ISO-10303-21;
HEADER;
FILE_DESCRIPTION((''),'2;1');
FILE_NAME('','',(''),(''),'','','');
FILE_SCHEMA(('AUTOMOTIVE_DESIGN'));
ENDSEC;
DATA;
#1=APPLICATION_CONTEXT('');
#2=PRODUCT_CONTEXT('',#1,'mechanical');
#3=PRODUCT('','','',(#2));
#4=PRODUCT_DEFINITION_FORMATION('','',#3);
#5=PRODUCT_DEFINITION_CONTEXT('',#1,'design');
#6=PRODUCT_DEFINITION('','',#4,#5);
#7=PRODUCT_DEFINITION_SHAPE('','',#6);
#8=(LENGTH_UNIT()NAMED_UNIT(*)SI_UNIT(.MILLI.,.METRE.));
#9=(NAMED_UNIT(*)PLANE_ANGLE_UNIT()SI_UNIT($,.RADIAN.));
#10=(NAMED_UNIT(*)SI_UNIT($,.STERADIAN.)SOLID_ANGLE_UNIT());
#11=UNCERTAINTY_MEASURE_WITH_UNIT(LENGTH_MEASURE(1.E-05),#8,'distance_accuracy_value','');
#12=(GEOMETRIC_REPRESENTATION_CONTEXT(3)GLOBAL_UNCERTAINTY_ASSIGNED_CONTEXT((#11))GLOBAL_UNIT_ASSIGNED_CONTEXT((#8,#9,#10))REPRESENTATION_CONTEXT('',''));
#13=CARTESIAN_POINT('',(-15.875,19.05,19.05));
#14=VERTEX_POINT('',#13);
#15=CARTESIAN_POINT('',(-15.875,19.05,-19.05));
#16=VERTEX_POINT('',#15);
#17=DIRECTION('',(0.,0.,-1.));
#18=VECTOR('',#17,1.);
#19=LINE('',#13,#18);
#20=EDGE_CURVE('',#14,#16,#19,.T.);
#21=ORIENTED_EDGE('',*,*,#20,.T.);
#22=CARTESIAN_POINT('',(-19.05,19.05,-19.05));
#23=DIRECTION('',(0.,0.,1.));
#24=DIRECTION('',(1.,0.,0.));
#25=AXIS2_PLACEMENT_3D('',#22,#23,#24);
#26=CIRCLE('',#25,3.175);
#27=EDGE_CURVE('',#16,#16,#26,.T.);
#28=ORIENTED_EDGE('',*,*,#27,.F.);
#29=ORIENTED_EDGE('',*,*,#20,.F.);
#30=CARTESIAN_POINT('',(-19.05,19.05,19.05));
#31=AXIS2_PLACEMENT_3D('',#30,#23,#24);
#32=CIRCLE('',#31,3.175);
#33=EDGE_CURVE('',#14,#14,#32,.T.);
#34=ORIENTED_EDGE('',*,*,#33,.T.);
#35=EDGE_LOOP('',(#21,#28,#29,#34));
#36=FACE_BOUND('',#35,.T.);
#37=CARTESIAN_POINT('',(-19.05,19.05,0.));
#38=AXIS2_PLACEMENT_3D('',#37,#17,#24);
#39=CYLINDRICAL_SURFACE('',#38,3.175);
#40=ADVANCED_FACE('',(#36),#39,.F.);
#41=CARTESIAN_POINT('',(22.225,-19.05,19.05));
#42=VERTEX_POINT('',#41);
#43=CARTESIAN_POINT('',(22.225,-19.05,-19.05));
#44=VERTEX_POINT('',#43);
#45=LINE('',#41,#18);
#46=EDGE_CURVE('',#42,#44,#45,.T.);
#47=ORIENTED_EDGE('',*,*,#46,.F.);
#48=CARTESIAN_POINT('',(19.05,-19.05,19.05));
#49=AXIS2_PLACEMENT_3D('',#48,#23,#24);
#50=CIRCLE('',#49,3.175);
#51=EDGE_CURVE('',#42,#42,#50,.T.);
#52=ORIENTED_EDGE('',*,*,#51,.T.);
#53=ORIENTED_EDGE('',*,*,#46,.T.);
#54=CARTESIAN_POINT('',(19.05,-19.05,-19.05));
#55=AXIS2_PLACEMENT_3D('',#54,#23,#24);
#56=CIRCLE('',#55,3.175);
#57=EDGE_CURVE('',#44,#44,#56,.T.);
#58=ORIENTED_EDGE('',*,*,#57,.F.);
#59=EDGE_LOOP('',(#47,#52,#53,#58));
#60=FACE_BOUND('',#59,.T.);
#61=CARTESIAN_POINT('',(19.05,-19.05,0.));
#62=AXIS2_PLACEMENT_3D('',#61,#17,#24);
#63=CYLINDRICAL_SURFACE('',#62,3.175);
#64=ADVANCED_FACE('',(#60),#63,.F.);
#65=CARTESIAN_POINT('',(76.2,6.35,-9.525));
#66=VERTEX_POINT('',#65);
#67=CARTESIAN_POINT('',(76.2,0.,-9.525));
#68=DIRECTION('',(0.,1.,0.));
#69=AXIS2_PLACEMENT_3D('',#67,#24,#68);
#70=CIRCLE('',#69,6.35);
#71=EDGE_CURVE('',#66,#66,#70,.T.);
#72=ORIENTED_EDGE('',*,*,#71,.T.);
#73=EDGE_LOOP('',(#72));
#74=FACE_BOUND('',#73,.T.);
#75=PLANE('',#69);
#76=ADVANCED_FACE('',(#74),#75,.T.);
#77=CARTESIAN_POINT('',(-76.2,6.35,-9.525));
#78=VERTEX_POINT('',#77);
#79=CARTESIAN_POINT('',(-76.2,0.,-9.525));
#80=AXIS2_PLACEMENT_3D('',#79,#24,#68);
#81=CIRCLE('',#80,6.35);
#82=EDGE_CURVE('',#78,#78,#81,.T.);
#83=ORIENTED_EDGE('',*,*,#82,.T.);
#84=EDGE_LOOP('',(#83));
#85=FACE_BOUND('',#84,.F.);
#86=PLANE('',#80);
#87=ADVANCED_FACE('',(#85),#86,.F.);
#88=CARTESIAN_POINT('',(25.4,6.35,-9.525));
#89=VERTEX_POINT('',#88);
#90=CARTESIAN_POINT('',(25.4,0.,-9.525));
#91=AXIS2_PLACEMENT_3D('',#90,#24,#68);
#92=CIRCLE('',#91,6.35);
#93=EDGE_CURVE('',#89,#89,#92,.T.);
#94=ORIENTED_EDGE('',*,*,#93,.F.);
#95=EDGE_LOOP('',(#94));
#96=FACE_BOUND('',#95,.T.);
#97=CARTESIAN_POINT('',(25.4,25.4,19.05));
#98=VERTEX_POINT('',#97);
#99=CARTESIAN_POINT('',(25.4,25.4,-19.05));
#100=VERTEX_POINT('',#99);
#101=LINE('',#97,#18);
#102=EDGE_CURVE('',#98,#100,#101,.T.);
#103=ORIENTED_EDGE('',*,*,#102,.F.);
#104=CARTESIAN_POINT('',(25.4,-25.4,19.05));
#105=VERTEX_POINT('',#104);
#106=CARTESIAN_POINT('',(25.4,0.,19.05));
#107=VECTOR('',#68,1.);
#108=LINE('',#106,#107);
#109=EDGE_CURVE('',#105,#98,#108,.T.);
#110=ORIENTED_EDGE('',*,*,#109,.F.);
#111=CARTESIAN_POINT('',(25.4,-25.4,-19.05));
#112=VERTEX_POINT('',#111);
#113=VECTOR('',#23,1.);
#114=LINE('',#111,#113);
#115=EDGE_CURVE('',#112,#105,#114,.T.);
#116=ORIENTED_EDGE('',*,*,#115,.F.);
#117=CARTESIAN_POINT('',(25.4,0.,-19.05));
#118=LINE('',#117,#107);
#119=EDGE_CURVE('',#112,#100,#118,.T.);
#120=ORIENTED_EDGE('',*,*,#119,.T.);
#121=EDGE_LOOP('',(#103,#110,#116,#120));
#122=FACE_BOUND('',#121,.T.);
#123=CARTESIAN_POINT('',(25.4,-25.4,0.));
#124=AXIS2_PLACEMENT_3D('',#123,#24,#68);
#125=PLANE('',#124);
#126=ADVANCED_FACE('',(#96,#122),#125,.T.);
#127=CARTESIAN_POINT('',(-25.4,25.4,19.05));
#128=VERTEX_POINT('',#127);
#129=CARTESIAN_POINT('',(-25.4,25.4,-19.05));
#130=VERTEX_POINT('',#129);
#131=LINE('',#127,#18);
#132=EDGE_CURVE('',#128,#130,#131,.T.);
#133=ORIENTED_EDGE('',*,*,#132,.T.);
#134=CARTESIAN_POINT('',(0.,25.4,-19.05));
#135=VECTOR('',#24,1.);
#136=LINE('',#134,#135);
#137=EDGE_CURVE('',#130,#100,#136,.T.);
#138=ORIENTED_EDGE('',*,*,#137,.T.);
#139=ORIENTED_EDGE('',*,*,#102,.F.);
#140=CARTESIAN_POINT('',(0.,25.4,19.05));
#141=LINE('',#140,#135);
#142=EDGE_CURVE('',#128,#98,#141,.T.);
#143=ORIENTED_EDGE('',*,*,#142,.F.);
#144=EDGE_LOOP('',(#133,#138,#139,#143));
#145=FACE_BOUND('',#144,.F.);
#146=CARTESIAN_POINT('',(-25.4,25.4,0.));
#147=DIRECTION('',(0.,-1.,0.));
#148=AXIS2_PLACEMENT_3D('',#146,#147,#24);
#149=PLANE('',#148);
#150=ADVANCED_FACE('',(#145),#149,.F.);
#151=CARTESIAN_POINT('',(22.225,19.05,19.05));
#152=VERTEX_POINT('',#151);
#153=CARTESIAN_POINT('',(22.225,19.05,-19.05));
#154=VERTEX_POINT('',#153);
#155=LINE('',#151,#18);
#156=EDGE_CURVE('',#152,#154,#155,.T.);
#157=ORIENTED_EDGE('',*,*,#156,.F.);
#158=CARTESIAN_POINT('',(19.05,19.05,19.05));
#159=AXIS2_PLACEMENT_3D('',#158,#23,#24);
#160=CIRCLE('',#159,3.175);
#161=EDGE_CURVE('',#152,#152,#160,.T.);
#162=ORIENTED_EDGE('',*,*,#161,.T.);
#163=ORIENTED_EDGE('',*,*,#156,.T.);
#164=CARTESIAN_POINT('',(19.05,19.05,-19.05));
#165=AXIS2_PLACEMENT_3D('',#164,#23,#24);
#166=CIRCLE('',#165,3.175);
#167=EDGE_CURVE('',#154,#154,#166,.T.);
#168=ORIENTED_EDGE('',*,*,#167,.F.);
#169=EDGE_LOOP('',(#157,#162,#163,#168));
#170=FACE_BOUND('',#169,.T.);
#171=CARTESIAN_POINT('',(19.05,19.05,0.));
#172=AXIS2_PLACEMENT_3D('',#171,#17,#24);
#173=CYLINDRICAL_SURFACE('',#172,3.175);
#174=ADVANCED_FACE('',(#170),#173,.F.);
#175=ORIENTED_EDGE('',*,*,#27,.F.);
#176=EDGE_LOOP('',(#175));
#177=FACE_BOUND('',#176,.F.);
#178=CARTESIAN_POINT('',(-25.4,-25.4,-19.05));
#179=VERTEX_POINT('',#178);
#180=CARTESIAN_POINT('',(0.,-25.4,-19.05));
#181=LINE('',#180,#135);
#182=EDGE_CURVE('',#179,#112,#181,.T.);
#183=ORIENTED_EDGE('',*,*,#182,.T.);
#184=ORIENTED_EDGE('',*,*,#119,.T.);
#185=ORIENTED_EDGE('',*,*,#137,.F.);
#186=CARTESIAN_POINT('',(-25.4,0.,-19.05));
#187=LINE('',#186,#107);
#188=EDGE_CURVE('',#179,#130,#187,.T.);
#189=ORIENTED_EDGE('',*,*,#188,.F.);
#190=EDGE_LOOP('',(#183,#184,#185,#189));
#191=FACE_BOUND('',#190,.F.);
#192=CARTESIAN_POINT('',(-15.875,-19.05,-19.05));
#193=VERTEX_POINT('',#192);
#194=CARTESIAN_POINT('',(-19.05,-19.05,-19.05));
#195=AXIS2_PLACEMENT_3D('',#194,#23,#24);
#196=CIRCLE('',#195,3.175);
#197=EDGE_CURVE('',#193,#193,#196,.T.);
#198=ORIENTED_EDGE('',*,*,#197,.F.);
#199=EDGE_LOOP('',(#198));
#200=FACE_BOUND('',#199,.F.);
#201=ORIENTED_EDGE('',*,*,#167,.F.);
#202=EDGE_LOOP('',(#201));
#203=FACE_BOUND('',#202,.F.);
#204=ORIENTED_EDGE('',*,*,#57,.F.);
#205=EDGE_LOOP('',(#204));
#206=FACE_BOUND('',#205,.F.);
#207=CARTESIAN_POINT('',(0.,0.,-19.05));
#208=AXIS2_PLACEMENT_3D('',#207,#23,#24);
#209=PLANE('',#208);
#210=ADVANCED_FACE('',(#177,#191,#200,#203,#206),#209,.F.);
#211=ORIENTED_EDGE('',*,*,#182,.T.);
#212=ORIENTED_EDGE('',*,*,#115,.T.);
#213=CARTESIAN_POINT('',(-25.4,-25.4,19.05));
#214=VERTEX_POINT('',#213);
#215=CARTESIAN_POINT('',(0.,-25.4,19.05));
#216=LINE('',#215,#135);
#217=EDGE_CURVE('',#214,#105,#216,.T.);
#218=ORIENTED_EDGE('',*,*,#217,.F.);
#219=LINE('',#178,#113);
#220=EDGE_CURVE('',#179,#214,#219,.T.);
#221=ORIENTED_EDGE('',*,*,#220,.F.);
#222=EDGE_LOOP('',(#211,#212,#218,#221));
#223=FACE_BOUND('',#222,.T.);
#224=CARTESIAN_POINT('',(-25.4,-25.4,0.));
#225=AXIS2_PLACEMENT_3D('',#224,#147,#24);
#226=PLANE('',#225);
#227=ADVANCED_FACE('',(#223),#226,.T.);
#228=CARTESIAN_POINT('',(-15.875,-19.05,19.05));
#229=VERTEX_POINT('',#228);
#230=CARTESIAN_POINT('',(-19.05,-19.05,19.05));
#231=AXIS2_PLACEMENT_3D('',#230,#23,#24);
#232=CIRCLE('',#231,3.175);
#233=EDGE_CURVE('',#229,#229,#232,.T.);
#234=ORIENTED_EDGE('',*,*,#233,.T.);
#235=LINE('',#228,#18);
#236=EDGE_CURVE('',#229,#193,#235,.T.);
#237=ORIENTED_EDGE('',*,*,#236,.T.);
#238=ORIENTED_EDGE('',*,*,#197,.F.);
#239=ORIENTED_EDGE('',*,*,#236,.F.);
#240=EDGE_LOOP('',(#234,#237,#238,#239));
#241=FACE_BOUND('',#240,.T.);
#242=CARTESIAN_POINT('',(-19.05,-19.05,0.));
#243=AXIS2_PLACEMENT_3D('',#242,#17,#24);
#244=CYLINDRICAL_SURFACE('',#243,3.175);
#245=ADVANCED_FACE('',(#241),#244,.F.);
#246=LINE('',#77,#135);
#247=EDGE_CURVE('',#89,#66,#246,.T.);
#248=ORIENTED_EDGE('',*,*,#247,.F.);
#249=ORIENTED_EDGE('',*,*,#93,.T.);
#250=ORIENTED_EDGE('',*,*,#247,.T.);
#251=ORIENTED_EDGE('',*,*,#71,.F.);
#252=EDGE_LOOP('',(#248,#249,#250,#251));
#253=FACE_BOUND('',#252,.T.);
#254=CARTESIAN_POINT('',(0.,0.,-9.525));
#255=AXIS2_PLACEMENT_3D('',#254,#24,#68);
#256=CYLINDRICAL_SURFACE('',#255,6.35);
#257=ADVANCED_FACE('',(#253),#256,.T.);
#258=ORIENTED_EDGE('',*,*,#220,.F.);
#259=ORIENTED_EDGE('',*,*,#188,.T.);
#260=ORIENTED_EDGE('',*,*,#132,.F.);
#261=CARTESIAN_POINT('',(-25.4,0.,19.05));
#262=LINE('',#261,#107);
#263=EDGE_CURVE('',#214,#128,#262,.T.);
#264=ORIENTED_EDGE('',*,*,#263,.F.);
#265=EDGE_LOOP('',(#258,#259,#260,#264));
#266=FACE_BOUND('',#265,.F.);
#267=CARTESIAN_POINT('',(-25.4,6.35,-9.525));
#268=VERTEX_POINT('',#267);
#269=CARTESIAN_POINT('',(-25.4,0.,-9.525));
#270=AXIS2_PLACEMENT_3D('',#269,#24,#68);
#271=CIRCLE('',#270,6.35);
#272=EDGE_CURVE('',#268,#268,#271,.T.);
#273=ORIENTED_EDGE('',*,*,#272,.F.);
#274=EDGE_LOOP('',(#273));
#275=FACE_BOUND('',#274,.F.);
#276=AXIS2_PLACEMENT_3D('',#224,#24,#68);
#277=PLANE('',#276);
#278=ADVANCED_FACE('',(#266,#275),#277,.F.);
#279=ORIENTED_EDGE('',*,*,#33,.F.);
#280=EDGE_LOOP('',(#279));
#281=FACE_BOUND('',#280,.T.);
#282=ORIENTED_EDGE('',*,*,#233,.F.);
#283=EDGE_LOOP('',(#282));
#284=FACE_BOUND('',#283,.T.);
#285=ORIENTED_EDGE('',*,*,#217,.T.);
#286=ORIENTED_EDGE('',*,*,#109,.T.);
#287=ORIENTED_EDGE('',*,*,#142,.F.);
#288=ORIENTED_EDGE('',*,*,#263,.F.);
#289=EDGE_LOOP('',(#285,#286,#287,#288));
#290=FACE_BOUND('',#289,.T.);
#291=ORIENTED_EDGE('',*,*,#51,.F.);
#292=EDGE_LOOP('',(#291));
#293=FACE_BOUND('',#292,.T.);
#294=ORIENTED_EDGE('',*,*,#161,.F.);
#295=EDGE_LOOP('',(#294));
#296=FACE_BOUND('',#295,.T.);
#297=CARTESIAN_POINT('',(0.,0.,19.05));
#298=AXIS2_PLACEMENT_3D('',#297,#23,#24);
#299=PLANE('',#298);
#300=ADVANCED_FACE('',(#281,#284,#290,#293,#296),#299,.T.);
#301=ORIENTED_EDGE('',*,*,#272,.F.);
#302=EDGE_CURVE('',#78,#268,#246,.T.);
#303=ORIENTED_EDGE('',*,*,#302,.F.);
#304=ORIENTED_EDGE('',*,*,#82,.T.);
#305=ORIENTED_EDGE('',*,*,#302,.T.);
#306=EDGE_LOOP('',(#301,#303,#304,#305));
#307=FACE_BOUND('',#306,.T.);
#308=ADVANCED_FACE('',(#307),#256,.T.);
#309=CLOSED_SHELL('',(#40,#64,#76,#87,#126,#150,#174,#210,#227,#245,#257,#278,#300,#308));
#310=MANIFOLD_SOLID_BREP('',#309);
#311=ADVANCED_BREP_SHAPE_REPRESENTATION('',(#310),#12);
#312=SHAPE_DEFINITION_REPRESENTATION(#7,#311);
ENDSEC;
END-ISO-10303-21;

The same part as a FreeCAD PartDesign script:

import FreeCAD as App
import Part
import Sketcher

V = App.Vector
Q = App.Units.Quantity

doc = App.newDocument("Part")
params = doc.addObject("Spreadsheet::Sheet", "Params")
for row, (alias, value) in enumerate([
    ("sketch1_diameter", "0.25 in"),
    ("sketch1_width", "2 in"),
    ("pad1_length", "1.5 in"),
    ("sketch2_diameter", "0.5 in"),
    ("pad2_length", "6 in"),
], start=1):
    params.set(f"A{row}", alias)
    params.set(f"B{row}", "=" + value)
    params.setAlias(f"B{row}", alias)

body = doc.addObject("PartDesign::Body", "Body")

# Sketch on XY plane
sketch1 = doc.addObject("Sketcher::SketchObject", "Sketch")
body.addObject(sketch1)
sketch1.AttachmentSupport = (doc.XY_Plane, [""])
sketch1.MapMode = "FlatFace"
sketch1.addGeometry(Part.LineSegment(V(-25.4, 25.4, 0), V(-25.4, -25.4, 0)), False)
sketch1.addGeometry(Part.LineSegment(V(-25.4, -25.4, 0), V(25.4, -25.4, 0)), False)
sketch1.addGeometry(Part.LineSegment(V(25.4, -25.4, 0), V(25.4, 25.4, 0)), False)
sketch1.addGeometry(Part.LineSegment(V(25.4, 25.4, 0), V(-25.4, 25.4, 0)), False)
sketch1.addGeometry(Part.Circle(V(-19.1, -19.1, 0), V(0, 0, 1), 3.2), False)
sketch1.addGeometry(Part.Circle(V(19.1, -19.1, 0), V(0, 0, 1), 3.2), False)
sketch1.addGeometry(Part.Circle(V(-19.1, 19.1, 0), V(0, 0, 1), 3.2), False)
sketch1.addGeometry(Part.Circle(V(19.1, 19.1, 0), V(0, 0, 1), 3.2), False)
sketch1.addConstraint(Sketcher.Constraint("Coincident", 0, 2, 1, 1))
sketch1.addConstraint(Sketcher.Constraint("Coincident", 1, 2, 2, 1))
sketch1.addConstraint(Sketcher.Constraint("Coincident", 2, 2, 3, 1))
sketch1.addConstraint(Sketcher.Constraint("Coincident", 3, 2, 0, 1))
sketch1.addConstraint(Sketcher.Constraint("Vertical", 0))
sketch1.addConstraint(Sketcher.Constraint("Horizontal", 1))
sketch1.addConstraint(Sketcher.Constraint("Vertical", 2))
sketch1.addConstraint(Sketcher.Constraint("Horizontal", 3))
sketch1.addConstraint(Sketcher.Constraint("Equal", 4, 5))
sketch1.addConstraint(Sketcher.Constraint("Equal", 5, 6))
sketch1.addConstraint(Sketcher.Constraint("Equal", 6, 7))
sketch1.addConstraint(Sketcher.Constraint("Symmetric", 5, 3, 6, 3, -1, 1))
sketch1.addConstraint(Sketcher.Constraint("Symmetric", 4, 3, 7, 3, -1, 1))
sketch1.addConstraint(Sketcher.Constraint("Symmetric", 0, 2, 2, 2, -1, 1))
sketch1.addConstraint(Sketcher.Constraint("Symmetric", 4, 3, 5, 3, -2))
sketch1.addConstraint(Sketcher.Constraint("Equal", 3, 0))
sketch1.addConstraint(Sketcher.Constraint("Diameter", 4, Q("0.25 in")))
sketch1.addConstraint(Sketcher.Constraint("DistanceX", 1, 1, 1, 2, Q("2 in")))
sketch1.addConstraint(Sketcher.Constraint("DistanceX", 4, 3, 5, 3, Q("1.5 in")))
sketch1.addConstraint(Sketcher.Constraint("DistanceY", 4, 3, 6, 3, Q("1.5 in")))
sketch1.setExpression("Constraints[16]", "Params.sketch1_diameter")
sketch1.setExpression("Constraints[17]", "Params.sketch1_width")
pad1 = doc.addObject("PartDesign::Pad", "Pad")
body.addObject(pad1)
pad1.Profile = sketch1
pad1.setExpression("Length", "Params.pad1_length")
pad1.Midplane = True

# Sketch on YZ plane
sketch2 = doc.addObject("Sketcher::SketchObject", "Sketch001")
body.addObject(sketch2)
sketch2.AttachmentSupport = (doc.YZ_Plane, [""])
sketch2.MapMode = "FlatFace"
sketch2.addGeometry(Part.Circle(V(0, -10, 0), V(0, 0, 1), 6), False)
sketch2.addConstraint(Sketcher.Constraint("PointOnObject", 0, 3, -2))
sketch2.addConstraint(Sketcher.Constraint("Diameter", 0, Q("0.5 in")))
sketch2.addConstraint(Sketcher.Constraint("DistanceY", 0, 3, -1, 1, Q("0.375 in")))
sketch2.setExpression("Constraints[1]", "Params.sketch2_diameter")
pad2 = doc.addObject("PartDesign::Pad", "Pad001")
body.addObject(pad2)
pad2.Profile = sketch2
pad2.setExpression("Length", "Params.pad2_length")
pad2.Midplane = True

doc.recompute()
